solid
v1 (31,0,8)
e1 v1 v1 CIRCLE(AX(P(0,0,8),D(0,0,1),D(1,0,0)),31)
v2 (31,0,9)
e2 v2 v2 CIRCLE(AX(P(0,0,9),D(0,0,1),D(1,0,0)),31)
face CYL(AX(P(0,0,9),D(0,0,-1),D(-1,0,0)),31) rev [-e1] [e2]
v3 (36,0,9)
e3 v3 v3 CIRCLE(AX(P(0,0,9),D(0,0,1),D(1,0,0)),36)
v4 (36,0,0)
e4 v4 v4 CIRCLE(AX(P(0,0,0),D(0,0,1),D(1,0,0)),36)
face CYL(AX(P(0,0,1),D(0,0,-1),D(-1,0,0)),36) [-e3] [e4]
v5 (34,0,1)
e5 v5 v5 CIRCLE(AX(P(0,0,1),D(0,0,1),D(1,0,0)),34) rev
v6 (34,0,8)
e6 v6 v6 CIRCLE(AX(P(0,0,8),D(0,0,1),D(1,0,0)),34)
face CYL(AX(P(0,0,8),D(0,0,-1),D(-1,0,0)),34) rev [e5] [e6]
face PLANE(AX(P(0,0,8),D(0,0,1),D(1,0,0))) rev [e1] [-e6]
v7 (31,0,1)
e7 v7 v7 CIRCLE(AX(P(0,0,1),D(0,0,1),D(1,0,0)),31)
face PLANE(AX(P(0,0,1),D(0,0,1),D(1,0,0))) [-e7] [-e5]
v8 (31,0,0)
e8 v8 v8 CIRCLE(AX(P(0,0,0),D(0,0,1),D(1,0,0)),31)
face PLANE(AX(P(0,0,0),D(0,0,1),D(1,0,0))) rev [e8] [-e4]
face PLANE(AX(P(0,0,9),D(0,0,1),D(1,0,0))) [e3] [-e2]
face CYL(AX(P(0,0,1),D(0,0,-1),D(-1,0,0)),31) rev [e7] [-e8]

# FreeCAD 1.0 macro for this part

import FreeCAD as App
import Part
import Sketcher

V = App.Vector

doc = App.newDocument("Part")
body = doc.addObject("PartDesign::Body", "Body")

sketch1 = body.newObject("Sketcher::SketchObject", "Sketch")
sketch1.AttachmentSupport = (doc.getObject("XY_Plane"), [""])
sketch1.MapMode = "FlatFace"
sketch1.addGeometry(Part.Circle(V(0, 0, 0), V(0, 0, 1), 36), False)
sketch1.addGeometry(Part.Circle(V(0, 0, 0), V(0, 0, 1), 31), False)
sketch1.addConstraint(Sketcher.Constraint("Coincident", 0, 3, -1, 1))
sketch1.addConstraint(Sketcher.Constraint("Coincident", 1, 3, -1, 1))
sketch1.addConstraint(Sketcher.Constraint("Diameter", 0, 72.0))
sketch1.addConstraint(Sketcher.Constraint("Diameter", 1, 62.0))
pad1 = body.newObject("PartDesign::Pad", "Pad")
pad1.Profile = sketch1
pad1.Length = 1

sketch2 = body.newObject("Sketcher::SketchObject", "Sketch001")
sketch2.AttachmentSupport = (doc.getObject("XY_Plane"), [""])
sketch2.MapMode = "FlatFace"
sketch2.AttachmentOffset = App.Placement(V(0, 0, 1), App.Rotation())
sketch2.addGeometry(Part.Circle(V(0, 0, 0), V(0, 0, 1), 36), False)
sketch2.addGeometry(Part.Circle(V(0, 0, 0), V(0, 0, 1), 34), False)
sketch2.addConstraint(Sketcher.Constraint("Coincident", 0, 3, -1, 1))
sketch2.addConstraint(Sketcher.Constraint("Coincident", 1, 3, -1, 1))
sketch2.addConstraint(Sketcher.Constraint("Diameter", 0, 72.0))
sketch2.addConstraint(Sketcher.Constraint("Diameter", 1, 68.0))
pad2 = body.newObject("PartDesign::Pad", "Pad001")
pad2.Profile = sketch2
pad2.Length = 7

sketch3 = body.newObject("Sketcher::SketchObject", "Sketch002")
sketch3.AttachmentSupport = (doc.getObject("XY_Plane"), [""])
sketch3.MapMode = "FlatFace"
sketch3.AttachmentOffset = App.Placement(V(0, 0, 8), App.Rotation())
sketch3.addGeometry(Part.Circle(V(0, 0, 0), V(0, 0, 1), 36), False)
sketch3.addGeometry(Part.Circle(V(0, 0, 0), V(0, 0, 1), 31), False)
sketch3.addConstraint(Sketcher.Constraint("Coincident", 0, 3, -1, 1))
sketch3.addConstraint(Sketcher.Constraint("Coincident", 1, 3, -1, 1))
sketch3.addConstraint(Sketcher.Constraint("Diameter", 0, 72.0))
sketch3.addConstraint(Sketcher.Constraint("Diameter", 1, 62.0))
pad3 = body.newObject("PartDesign::Pad", "Pad002")
pad3.Profile = sketch3
pad3.Length = 1

doc.recompute()
